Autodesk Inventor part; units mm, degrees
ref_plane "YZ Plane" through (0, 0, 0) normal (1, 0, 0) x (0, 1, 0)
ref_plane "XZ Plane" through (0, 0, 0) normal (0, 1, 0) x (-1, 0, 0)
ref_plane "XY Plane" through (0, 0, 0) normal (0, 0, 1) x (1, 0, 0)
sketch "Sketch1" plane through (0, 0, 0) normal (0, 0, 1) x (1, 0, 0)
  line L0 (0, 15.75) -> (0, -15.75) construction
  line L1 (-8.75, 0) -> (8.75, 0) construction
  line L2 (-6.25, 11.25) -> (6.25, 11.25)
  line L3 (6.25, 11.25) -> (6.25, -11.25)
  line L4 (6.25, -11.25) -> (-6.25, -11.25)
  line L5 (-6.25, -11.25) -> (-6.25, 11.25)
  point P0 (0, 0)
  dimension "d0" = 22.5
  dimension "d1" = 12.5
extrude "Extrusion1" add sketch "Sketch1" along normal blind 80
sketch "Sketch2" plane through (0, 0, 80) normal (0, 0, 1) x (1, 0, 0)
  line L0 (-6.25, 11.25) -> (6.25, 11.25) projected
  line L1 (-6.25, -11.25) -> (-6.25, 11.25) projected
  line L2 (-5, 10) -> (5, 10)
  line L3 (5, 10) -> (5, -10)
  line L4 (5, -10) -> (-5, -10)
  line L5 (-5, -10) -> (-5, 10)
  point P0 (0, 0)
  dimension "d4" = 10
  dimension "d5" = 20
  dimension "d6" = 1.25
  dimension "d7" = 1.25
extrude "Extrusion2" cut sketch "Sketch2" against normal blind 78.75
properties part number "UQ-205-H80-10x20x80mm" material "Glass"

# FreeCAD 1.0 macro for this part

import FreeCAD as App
import Part
import Sketcher
Q = App.Units.Quantity


def add_polygon(sketch, points):
    """Adds a closed chain of lines whose ends are joined by coincident constraints."""
    first, n = sketch.GeometryCount, len(points)
    for a, b in zip(points, points[1:] + points[:1]):
        sketch.addGeometry(Part.LineSegment(App.Vector(*a, 0), App.Vector(*b, 0)), False)
    for i in range(n):
        sketch.addConstraint(Sketcher.Constraint("Coincident", first + i, 2, first + (i + 1) % n, 1))

doc = App.newDocument("Part")
body = doc.addObject("PartDesign::Body", "Body")

# Sketch on XY plane
sketch1 = body.newObject("Sketcher::SketchObject", "Sketch")
sketch1.AttachmentSupport = (doc.getObject("XY_Plane"), [""])
sketch1.MapMode = "FlatFace"
add_polygon(sketch1, [(6, 11), (-6, 11), (-6, -11), (6, -11)])  # lines 0-3
sketch1.addConstraint(Sketcher.Constraint("Horizontal", 0))
sketch1.addConstraint(Sketcher.Constraint("Vertical", 1))
sketch1.addConstraint(Sketcher.Constraint("Horizontal", 2))
sketch1.addConstraint(Sketcher.Constraint("Vertical", 3))
sketch1.addConstraint(Sketcher.Constraint("Symmetric", 0, 2, 2, 2, -1, 1))
sketch1.addConstraint(Sketcher.Constraint("DistanceX", 0, 2, 0, 1, Q("12.5 mm")))
sketch1.addConstraint(Sketcher.Constraint("DistanceY", 1, 2, 1, 1, Q("22.5 mm")))
pad1 = body.newObject("PartDesign::Pad", "Pad")
pad1.Profile = sketch1
pad1.Length = 80

# Sketch on XY plane
sketch2 = body.newObject("Sketcher::SketchObject", "Sketch001")
sketch2.AttachmentSupport = (doc.getObject("XY_Plane"), [""])
sketch2.MapMode = "FlatFace"
sketch2.AttachmentOffset = App.Placement(App.Vector(0, 0, 80), App.Rotation())
add_polygon(sketch2, [(5, 10), (-5, 10), (-5, -10), (5, -10)])  # lines 0-3
sketch2.addConstraint(Sketcher.Constraint("Horizontal", 0))
sketch2.addConstraint(Sketcher.Constraint("Vertical", 1))
sketch2.addConstraint(Sketcher.Constraint("Horizontal", 2))
sketch2.addConstraint(Sketcher.Constraint("Vertical", 3))
sketch2.addConstraint(Sketcher.Constraint("Symmetric", 0, 2, 2, 2, -1, 1))
sketch2.addConstraint(Sketcher.Constraint("DistanceX", 0, 2, 0, 1, Q("10 mm")))
sketch2.addConstraint(Sketcher.Constraint("DistanceY", 1, 2, 1, 1, Q("20 mm")))
pocket1 = body.newObject("PartDesign::Pocket", "Pocket")
pocket1.Profile = sketch2
pocket1.Length = 78.75

doc.recompute()
